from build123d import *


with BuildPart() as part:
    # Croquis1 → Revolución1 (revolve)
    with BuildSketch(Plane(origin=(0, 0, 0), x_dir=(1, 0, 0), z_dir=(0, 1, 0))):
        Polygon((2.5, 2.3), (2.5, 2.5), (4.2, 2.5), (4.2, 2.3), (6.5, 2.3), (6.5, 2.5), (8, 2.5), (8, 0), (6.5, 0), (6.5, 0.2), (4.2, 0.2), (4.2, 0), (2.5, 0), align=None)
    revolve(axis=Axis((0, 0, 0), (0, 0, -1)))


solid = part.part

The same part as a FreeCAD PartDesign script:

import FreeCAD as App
import Part
import Sketcher

V = App.Vector

doc = App.newDocument("Part")
body = doc.addObject("PartDesign::Body", "Body")

# Sketch on XZ plane
sketch1 = body.newObject("Sketcher::SketchObject", "Sketch")
sketch1.AttachmentSupport = (doc.getObject("XZ_Plane"), [""])
sketch1.MapMode = "FlatFace"
sketch1.addGeometry([
    Part.LineSegment(V(2.5, -2.5, 0), V(2.5, 0, 0)),  # 0
    Part.LineSegment(V(2.5, 0, 0), V(4.2, 0, 0)),  # 1
    Part.LineSegment(V(4.2, 0, 0), V(4.2, -0.2, 0)),  # 2
    Part.LineSegment(V(4.2, -0.2, 0), V(6.5, -0.2, 0)),  # 3
    Part.LineSegment(V(6.5, -0.2, 0), V(6.5, 0, 0)),  # 4
    Part.LineSegment(V(6.5, 0, 0), V(8, 0, 0)),  # 5
    Part.LineSegment(V(8, 0, 0), V(8, -2.5, 0)),  # 6
    Part.LineSegment(V(8, -2.5, 0), V(6.5, -2.5, 0)),  # 7
    Part.LineSegment(V(6.5, -2.5, 0), V(6.5, -2.3, 0)),  # 8
    Part.LineSegment(V(6.5, -2.3, 0), V(4.2, -2.3, 0)),  # 9
    Part.LineSegment(V(4.2, -2.3, 0), V(4.2, -2.5, 0)),  # 10
    Part.LineSegment(V(4.2, -2.5, 0), V(2.5, -2.5, 0)),  # 11
], False)
sketch1.addConstraint([
    Sketcher.Constraint("Coincident", 0, 2, 1, 1),
    Sketcher.Constraint("Coincident", 1, 2, 2, 1),
    Sketcher.Constraint("Coincident", 2, 2, 3, 1),
    Sketcher.Constraint("Coincident", 3, 2, 4, 1),
    Sketcher.Constraint("Coincident", 4, 2, 5, 1),
    Sketcher.Constraint("Coincident", 5, 2, 6, 1),
    Sketcher.Constraint("Coincident", 6, 2, 7, 1),
    Sketcher.Constraint("Coincident", 7, 2, 8, 1),
    Sketcher.Constraint("Coincident", 8, 2, 9, 1),
    Sketcher.Constraint("Coincident", 9, 2, 10, 1),
    Sketcher.Constraint("Coincident", 10, 2, 11, 1),
    Sketcher.Constraint("Coincident", 11, 2, 0, 1),
    Sketcher.Constraint("Vertical", 0),
    Sketcher.Constraint("Horizontal", 1),
    Sketcher.Constraint("Vertical", 2),
    Sketcher.Constraint("Horizontal", 3),
    Sketcher.Constraint("Vertical", 4),
    Sketcher.Constraint("Horizontal", 5),
    Sketcher.Constraint("Vertical", 6),
    Sketcher.Constraint("Horizontal", 7),
    Sketcher.Constraint("Vertical", 8),
    Sketcher.Constraint("Horizontal", 9),
    Sketcher.Constraint("Vertical", 10),
    Sketcher.Constraint("Horizontal", 11),
    Sketcher.Constraint("PointOnObject", 0, 2, -1),
    Sketcher.Constraint("PointOnObject", 4, 2, -1),
    Sketcher.Constraint("Horizontal", 7, 2, 10, 2),
    Sketcher.Constraint("Vertical", 4, 2, 7, 2),
    Sketcher.Constraint("Vertical", 2, 2, 9, 2),
    Sketcher.Constraint("Equal", 4, 8),
    Sketcher.Constraint("DistanceX", 1, 1, 1, 2, 1.7),
    Sketcher.Constraint("DistanceX", 3, 1, 3, 2, 2.3),
    Sketcher.Constraint("DistanceX", 5, 1, 5, 2, 1.5),
    Sketcher.Constraint("DistanceY", 0, 1, 0, 2, 2.5),
    Sketcher.Constraint("DistanceY", 2, 2, 2, 1, 0.2),
    Sketcher.Constraint("DistanceX", -1, 1, 5, 2, 8.0),
])
revolution = body.newObject("PartDesign::Revolution", "Revolution")
revolution.Profile = sketch1
revolution.ReferenceAxis = (sketch1, ["V_Axis"])
revolution.Angle = 360

doc.recompute()
